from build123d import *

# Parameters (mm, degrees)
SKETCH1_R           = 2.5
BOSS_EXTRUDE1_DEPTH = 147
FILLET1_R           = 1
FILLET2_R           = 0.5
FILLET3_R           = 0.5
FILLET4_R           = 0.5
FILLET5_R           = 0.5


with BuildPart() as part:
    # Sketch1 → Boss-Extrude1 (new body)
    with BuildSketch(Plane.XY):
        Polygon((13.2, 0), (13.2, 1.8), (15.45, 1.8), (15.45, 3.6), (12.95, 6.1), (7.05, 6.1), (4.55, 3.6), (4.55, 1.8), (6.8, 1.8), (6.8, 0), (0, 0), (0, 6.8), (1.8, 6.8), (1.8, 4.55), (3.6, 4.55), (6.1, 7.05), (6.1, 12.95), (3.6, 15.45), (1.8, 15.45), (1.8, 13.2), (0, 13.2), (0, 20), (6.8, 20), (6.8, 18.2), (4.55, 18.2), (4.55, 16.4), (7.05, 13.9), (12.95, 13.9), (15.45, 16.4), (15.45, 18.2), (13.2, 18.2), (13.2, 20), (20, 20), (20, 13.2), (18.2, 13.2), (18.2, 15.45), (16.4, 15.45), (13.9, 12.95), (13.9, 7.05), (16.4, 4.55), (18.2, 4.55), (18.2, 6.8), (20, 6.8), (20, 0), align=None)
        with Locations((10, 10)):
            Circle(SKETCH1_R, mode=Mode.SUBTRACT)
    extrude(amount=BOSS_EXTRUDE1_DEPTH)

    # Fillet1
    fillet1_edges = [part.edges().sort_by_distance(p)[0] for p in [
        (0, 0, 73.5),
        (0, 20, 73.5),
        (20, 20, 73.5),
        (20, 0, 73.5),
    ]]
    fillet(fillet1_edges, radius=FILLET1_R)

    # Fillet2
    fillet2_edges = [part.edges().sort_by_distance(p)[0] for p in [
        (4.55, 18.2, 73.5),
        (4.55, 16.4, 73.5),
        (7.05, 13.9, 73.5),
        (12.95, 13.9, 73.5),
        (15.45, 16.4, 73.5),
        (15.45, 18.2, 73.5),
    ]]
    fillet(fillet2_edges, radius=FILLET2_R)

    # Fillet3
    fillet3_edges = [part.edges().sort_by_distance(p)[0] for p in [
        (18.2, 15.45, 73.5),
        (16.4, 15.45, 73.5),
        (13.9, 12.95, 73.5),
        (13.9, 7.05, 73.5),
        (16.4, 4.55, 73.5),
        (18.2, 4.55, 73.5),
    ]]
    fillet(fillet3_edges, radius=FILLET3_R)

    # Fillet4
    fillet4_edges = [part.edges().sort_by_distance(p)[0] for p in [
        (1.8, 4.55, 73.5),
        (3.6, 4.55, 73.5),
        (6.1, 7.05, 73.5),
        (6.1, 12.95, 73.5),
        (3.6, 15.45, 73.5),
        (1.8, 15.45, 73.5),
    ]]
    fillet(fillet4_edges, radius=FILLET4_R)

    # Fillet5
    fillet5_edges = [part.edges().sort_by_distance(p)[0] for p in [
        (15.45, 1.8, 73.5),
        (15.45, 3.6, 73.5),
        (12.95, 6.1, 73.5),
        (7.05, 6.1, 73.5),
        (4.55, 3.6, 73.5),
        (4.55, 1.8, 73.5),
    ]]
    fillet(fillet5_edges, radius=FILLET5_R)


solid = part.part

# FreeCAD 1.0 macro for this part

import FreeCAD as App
import Part
import Sketcher
Q = App.Units.Quantity


def edges_at(feature, points):
    """Names of the edges that pass closest to the given points."""
    edges = feature.Shape.Edges
    near = lambda p: min(range(len(edges)), key=lambda i: edges[i].distToShape(Part.Vertex(*p))[0])
    return sorted({f"Edge{near(p) + 1}" for p in points})


def add_polygon(sketch, points):
    """Adds a closed chain of lines whose ends are joined by coincident constraints."""
    first, n = sketch.GeometryCount, len(points)
    for a, b in zip(points, points[1:] + points[:1]):
        sketch.addGeometry(Part.LineSegment(App.Vector(*a, 0), App.Vector(*b, 0)), False)
    for i in range(n):
        sketch.addConstraint(Sketcher.Constraint("Coincident", first + i, 2, first + (i + 1) % n, 1))

doc = App.newDocument("Part")
params = doc.addObject("Spreadsheet::Sheet", "Params")
for row, (alias, value) in enumerate([
    ("sketch1_diameter", "5 mm"),
    ("sketch1_width", "6.8 mm"),
    ("sketch1_width2", "1.8 mm"),
    ("sketch1_width3", "5.9 mm"),
    ("sketch1_width4", "2.25 mm"),
    ("pad1_length", "147 mm"),
    ("fillet_radius", "1 mm"),
    ("fillet2_radius", "0.5 mm"),
    ("fillet3_radius", "0.5 mm"),
    ("fillet4_radius", "0.5 mm"),
    ("fillet5_radius", "0.5 mm"),
], start=1):
    params.set(f"A{row}", alias)
    params.set(f"B{row}", "=" + value)
    params.setAlias(f"B{row}", alias)

body = doc.addObject("PartDesign::Body", "Body")

# Sketch on XY plane
sketch1 = body.newObject("Sketcher::SketchObject", "Sketch")
sketch1.AttachmentSupport = (doc.getObject("XY_Plane"), [""])
sketch1.MapMode = "FlatFace"
add_polygon(sketch1, [(13.2, 1.8), (13.2, 0), (20, 0), (20, 6.8), (18.2, 6.8), (18.2, 4.5), (16.4, 4.5), (13.9, 7), (13.9, 12.9), (16.4, 15.4), (18.2, 15.4), (18.2, 13.2), (20, 13.2), (20, 20), (13.2, 20), (13.2, 18.2), (15.4, 18.2), (15.4, 16.4), (12.9, 13.9), (7, 13.9), (4.5, 16.4), (4.5, 18.2), (6.8, 18.2), (6.8, 20), (0, 20), (0, 13.2), (1.8, 13.2), (1.8, 15.4), (3.6, 15.4), (6.1, 12.9), (6.1, 7), (3.6, 4.5), (1.8, 4.5), (1.8, 6.8), (0, 6.8), (0, 0), (6.8, 0), (6.8, 1.8), (4.5, 1.8), (4.5, 3.6), (7, 6.1), (12.9, 6.1), (15.4, 3.6), (15.4, 1.8)])  # lines 0-43
sketch1.addGeometry(Part.Circle(App.Vector(10, 10, 0), App.Vector(0, 0, 1), 2.5), False)  # 44
sketch1.addConstraint(Sketcher.Constraint("Vertical", 0))
sketch1.addConstraint(Sketcher.Constraint("Horizontal", 1))
sketch1.addConstraint(Sketcher.Constraint("Vertical", 2))
sketch1.addConstraint(Sketcher.Constraint("Horizontal", 3))
sketch1.addConstraint(Sketcher.Constraint("Vertical", 4))
sketch1.addConstraint(Sketcher.Constraint("Horizontal", 5))
sketch1.addConstraint(Sketcher.Constraint("Vertical", 7))
sketch1.addConstraint(Sketcher.Constraint("Horizontal", 9))
sketch1.addConstraint(Sketcher.Constraint("Vertical", 10))
sketch1.addConstraint(Sketcher.Constraint("Horizontal", 11))
sketch1.addConstraint(Sketcher.Constraint("Vertical", 12))
sketch1.addConstraint(Sketcher.Constraint("Horizontal", 13))
sketch1.addConstraint(Sketcher.Constraint("Vertical", 14))
sketch1.addConstraint(Sketcher.Constraint("Horizontal", 15))
sketch1.addConstraint(Sketcher.Constraint("Vertical", 16))
sketch1.addConstraint(Sketcher.Constraint("Horizontal", 18))
sketch1.addConstraint(Sketcher.Constraint("Vertical", 20))
sketch1.addConstraint(Sketcher.Constraint("Horizontal", 21))
sketch1.addConstraint(Sketcher.Constraint("Vertical", 22))
sketch1.addConstraint(Sketcher.Constraint("Horizontal", 23))
sketch1.addConstraint(Sketcher.Constraint("Vertical", 24))
sketch1.addConstraint(Sketcher.Constraint("Horizontal", 25))
sketch1.addConstraint(Sketcher.Constraint("Vertical", 26))
sketch1.addConstraint(Sketcher.Constraint("Horizontal", 27))
sketch1.addConstraint(Sketcher.Constraint("Vertical", 29))
sketch1.addConstraint(Sketcher.Constraint("Horizontal", 31))
sketch1.addConstraint(Sketcher.Constraint("Vertical", 32))
sketch1.addConstraint(Sketcher.Constraint("Horizontal", 33))
sketch1.addConstraint(Sketcher.Constraint("Vertical", 34))
sketch1.addConstraint(Sketcher.Constraint("Horizontal", 35))
sketch1.addConstraint(Sketcher.Constraint("Vertical", 36))
sketch1.addConstraint(Sketcher.Constraint("Horizontal", 37))
sketch1.addConstraint(Sketcher.Constraint("Vertical", 38))
sketch1.addConstraint(Sketcher.Constraint("Horizontal", 40))
sketch1.addConstraint(Sketcher.Constraint("Vertical", 42))
sketch1.addConstraint(Sketcher.Constraint("Horizontal", 43))
sketch1.addConstraint(Sketcher.Constraint("Coincident", 34, 2, -1, 1))
sketch1.addConstraint(Sketcher.Constraint("PointOnObject", 0, 2, -1))
sketch1.addConstraint(Sketcher.Constraint("PointOnObject", 23, 2, -2))
sketch1.addConstraint(Sketcher.Constraint("Perpendicular", 6, 8))
sketch1.addConstraint(Sketcher.Constraint("Parallel", 8, 17))
sketch1.addConstraint(Sketcher.Constraint("Perpendicular", 17, 19))
sketch1.addConstraint(Sketcher.Constraint("Parallel", 19, 28))
sketch1.addConstraint(Sketcher.Constraint("Perpendicular", 28, 30))
sketch1.addConstraint(Sketcher.Constraint("Parallel", 30, 39))
sketch1.addConstraint(Sketcher.Constraint("Perpendicular", 39, 41))
sketch1.addConstraint(Sketcher.Constraint("Horizontal", 16, 2, 19, 2))
sketch1.addConstraint(Sketcher.Constraint("Horizontal", 15, 2, 20, 2))
sketch1.addConstraint(Sketcher.Constraint("Horizontal", 13, 2, 22, 2))
sketch1.addConstraint(Sketcher.Constraint("Horizontal", 11, 2, 24, 2))
sketch1.addConstraint(Sketcher.Constraint("Horizontal", 9, 2, 26, 2))
sketch1.addConstraint(Sketcher.Constraint("Horizontal", 7, 2, 28, 2))
sketch1.addConstraint(Sketcher.Constraint("Horizontal", 6, 2, 29, 2))
sketch1.addConstraint(Sketcher.Constraint("Horizontal", 5, 2, 30, 2))
sketch1.addConstraint(Sketcher.Constraint("Horizontal", 3, 2, 32, 2))
sketch1.addConstraint(Sketcher.Constraint("Horizontal", 38, 2, 41, 2))
sketch1.addConstraint(Sketcher.Constraint("Horizontal", 37, 2, 42, 2))
sketch1.addConstraint(Sketcher.Constraint("Vertical", 5, 2, 8, 2))
sketch1.addConstraint(Sketcher.Constraint("Vertical", 4, 2, 9, 2))
sketch1.addConstraint(Sketcher.Constraint("Vertical", 2, 2, 11, 2))
sketch1.addConstraint(Sketcher.Constraint("Vertical", 0, 2, 13, 2))
sketch1.addConstraint(Sketcher.Constraint("Vertical", 27, 2, 30, 2))
sketch1.addConstraint(Sketcher.Constraint("Vertical", 26, 2, 31, 2))
sketch1.addConstraint(Sketcher.Constraint("Vertical", 22, 2, 35, 2))
sketch1.addConstraint(Sketcher.Constraint("Vertical", 20, 2, 37, 2))
sketch1.addConstraint(Sketcher.Constraint("Vertical", 18, 2, 39, 2))
sketch1.addConstraint(Sketcher.Constraint("Vertical", 17, 2, 40, 2))
sketch1.addConstraint(Sketcher.Constraint("Equal", 3, 5))
sketch1.addConstraint(Sketcher.Constraint("Equal", 15, 21))
sketch1.addConstraint(Sketcher.Constraint("Equal", 13, 23))
sketch1.addConstraint(Sketcher.Constraint("Equal", 11, 25))
sketch1.addConstraint(Sketcher.Constraint("Equal", 25, 27))
sketch1.addConstraint(Sketcher.Constraint("Equal", 33, 0))
sketch1.addConstraint(Sketcher.Constraint("Equal", 35, 2))
sketch1.addConstraint(Sketcher.Constraint("Equal", 43, 4))
sketch1.addConstraint(Sketcher.Constraint("Equal", 40, 7))
sketch1.addConstraint(Sketcher.Constraint("Equal", 4, 10))
sketch1.addConstraint(Sketcher.Constraint("Equal", 2, 12))
sketch1.addConstraint(Sketcher.Constraint("Equal", 0, 14))
sketch1.addConstraint(Sketcher.Constraint("Equal", 14, 16))
sketch1.addConstraint(Sketcher.Constraint("Equal", 36, 38))
sketch1.addConstraint(Sketcher.Constraint("Equal", 8, 17))
sketch1.addConstraint(Sketcher.Constraint("Diameter", 44, Q("5 mm")))
sketch1.addConstraint(Sketcher.Constraint("DistanceX", 1, 1, 1, 2, Q("6.8 mm")))
sketch1.addConstraint(Sketcher.Constraint("DistanceX", 3, 2, 3, 1, Q("1.8 mm")))
sketch1.addConstraint(Sketcher.Constraint("DistanceX", 18, 2, 18, 1, Q("5.9 mm")))
sketch1.addConstraint(Sketcher.Constraint("DistanceX", -1, 1, 44, 3, Q("10 mm")))
sketch1.addConstraint(Sketcher.Constraint("DistanceY", -1, 1, 44, 3, Q("10 mm")))
sketch1.addConstraint(Sketcher.Constraint("DistanceX", -1, 1, 1, 2, Q("20 mm")))
sketch1.addConstraint(Sketcher.Constraint("DistanceX", 15, 1, 15, 2, Q("2.25 mm")))
sketch1.setExpression("Constraints[126]", "Params.sketch1_diameter")
sketch1.setExpression("Constraints[127]", "Params.sketch1_width")
sketch1.setExpression("Constraints[128]", "Params.sketch1_width2")
sketch1.setExpression("Constraints[129]", "Params.sketch1_width3")
sketch1.setExpression("Constraints[133]", "Params.sketch1_width4")
pad1 = body.newObject("PartDesign::Pad", "Pad")
pad1.Profile = sketch1
pad1.setExpression("Length", "Params.pad1_length")
doc.recompute()

fillet = body.newObject("PartDesign::Fillet", "Fillet")
fillet.Base = (pad1, edges_at(pad1, [
    (0, 0, 73.5),
    (0, 20, 73.5),
    (20, 20, 73.5),
    (20, 0, 73.5),
]))
fillet.setExpression("Radius", "Params.fillet_radius")
doc.recompute()

fillet2 = body.newObject("PartDesign::Fillet", "Fillet001")
fillet2.Base = (fillet, edges_at(fillet, [
    (4.55, 18.2, 73.5),
    (4.55, 16.4, 73.5),
    (7.05, 13.9, 73.5),
    (12.95, 13.9, 73.5),
    (15.45, 16.4, 73.5),
    (15.45, 18.2, 73.5),
]))
fillet2.setExpression("Radius", "Params.fillet2_radius")
doc.recompute()

fillet3 = body.newObject("PartDesign::Fillet", "Fillet002")
fillet3.Base = (fillet2, edges_at(fillet2, [
    (18.2, 15.45, 73.5),
    (16.4, 15.45, 73.5),
    (13.9, 12.95, 73.5),
    (13.9, 7.05, 73.5),
    (16.4, 4.55, 73.5),
    (18.2, 4.55, 73.5),
]))
fillet3.setExpression("Radius", "Params.fillet3_radius")
doc.recompute()

fillet4 = body.newObject("PartDesign::Fillet", "Fillet003")
fillet4.Base = (fillet3, edges_at(fillet3, [
    (1.8, 4.55, 73.5),
    (3.6, 4.55, 73.5),
    (6.1, 7.05, 73.5),
    (6.1, 12.95, 73.5),
    (3.6, 15.45, 73.5),
    (1.8, 15.45, 73.5),
]))
fillet4.setExpression("Radius", "Params.fillet4_radius")
doc.recompute()

fillet5 = body.newObject("PartDesign::Fillet", "Fillet004")
fillet5.Base = (fillet4, edges_at(fillet4, [
    (15.45, 1.8, 73.5),
    (15.45, 3.6, 73.5),
    (12.95, 6.1, 73.5),
    (7.05, 6.1, 73.5),
    (4.55, 3.6, 73.5),
    (4.55, 1.8, 73.5),
]))
fillet5.setExpression("Radius", "Params.fillet5_radius")

doc.recompute()
